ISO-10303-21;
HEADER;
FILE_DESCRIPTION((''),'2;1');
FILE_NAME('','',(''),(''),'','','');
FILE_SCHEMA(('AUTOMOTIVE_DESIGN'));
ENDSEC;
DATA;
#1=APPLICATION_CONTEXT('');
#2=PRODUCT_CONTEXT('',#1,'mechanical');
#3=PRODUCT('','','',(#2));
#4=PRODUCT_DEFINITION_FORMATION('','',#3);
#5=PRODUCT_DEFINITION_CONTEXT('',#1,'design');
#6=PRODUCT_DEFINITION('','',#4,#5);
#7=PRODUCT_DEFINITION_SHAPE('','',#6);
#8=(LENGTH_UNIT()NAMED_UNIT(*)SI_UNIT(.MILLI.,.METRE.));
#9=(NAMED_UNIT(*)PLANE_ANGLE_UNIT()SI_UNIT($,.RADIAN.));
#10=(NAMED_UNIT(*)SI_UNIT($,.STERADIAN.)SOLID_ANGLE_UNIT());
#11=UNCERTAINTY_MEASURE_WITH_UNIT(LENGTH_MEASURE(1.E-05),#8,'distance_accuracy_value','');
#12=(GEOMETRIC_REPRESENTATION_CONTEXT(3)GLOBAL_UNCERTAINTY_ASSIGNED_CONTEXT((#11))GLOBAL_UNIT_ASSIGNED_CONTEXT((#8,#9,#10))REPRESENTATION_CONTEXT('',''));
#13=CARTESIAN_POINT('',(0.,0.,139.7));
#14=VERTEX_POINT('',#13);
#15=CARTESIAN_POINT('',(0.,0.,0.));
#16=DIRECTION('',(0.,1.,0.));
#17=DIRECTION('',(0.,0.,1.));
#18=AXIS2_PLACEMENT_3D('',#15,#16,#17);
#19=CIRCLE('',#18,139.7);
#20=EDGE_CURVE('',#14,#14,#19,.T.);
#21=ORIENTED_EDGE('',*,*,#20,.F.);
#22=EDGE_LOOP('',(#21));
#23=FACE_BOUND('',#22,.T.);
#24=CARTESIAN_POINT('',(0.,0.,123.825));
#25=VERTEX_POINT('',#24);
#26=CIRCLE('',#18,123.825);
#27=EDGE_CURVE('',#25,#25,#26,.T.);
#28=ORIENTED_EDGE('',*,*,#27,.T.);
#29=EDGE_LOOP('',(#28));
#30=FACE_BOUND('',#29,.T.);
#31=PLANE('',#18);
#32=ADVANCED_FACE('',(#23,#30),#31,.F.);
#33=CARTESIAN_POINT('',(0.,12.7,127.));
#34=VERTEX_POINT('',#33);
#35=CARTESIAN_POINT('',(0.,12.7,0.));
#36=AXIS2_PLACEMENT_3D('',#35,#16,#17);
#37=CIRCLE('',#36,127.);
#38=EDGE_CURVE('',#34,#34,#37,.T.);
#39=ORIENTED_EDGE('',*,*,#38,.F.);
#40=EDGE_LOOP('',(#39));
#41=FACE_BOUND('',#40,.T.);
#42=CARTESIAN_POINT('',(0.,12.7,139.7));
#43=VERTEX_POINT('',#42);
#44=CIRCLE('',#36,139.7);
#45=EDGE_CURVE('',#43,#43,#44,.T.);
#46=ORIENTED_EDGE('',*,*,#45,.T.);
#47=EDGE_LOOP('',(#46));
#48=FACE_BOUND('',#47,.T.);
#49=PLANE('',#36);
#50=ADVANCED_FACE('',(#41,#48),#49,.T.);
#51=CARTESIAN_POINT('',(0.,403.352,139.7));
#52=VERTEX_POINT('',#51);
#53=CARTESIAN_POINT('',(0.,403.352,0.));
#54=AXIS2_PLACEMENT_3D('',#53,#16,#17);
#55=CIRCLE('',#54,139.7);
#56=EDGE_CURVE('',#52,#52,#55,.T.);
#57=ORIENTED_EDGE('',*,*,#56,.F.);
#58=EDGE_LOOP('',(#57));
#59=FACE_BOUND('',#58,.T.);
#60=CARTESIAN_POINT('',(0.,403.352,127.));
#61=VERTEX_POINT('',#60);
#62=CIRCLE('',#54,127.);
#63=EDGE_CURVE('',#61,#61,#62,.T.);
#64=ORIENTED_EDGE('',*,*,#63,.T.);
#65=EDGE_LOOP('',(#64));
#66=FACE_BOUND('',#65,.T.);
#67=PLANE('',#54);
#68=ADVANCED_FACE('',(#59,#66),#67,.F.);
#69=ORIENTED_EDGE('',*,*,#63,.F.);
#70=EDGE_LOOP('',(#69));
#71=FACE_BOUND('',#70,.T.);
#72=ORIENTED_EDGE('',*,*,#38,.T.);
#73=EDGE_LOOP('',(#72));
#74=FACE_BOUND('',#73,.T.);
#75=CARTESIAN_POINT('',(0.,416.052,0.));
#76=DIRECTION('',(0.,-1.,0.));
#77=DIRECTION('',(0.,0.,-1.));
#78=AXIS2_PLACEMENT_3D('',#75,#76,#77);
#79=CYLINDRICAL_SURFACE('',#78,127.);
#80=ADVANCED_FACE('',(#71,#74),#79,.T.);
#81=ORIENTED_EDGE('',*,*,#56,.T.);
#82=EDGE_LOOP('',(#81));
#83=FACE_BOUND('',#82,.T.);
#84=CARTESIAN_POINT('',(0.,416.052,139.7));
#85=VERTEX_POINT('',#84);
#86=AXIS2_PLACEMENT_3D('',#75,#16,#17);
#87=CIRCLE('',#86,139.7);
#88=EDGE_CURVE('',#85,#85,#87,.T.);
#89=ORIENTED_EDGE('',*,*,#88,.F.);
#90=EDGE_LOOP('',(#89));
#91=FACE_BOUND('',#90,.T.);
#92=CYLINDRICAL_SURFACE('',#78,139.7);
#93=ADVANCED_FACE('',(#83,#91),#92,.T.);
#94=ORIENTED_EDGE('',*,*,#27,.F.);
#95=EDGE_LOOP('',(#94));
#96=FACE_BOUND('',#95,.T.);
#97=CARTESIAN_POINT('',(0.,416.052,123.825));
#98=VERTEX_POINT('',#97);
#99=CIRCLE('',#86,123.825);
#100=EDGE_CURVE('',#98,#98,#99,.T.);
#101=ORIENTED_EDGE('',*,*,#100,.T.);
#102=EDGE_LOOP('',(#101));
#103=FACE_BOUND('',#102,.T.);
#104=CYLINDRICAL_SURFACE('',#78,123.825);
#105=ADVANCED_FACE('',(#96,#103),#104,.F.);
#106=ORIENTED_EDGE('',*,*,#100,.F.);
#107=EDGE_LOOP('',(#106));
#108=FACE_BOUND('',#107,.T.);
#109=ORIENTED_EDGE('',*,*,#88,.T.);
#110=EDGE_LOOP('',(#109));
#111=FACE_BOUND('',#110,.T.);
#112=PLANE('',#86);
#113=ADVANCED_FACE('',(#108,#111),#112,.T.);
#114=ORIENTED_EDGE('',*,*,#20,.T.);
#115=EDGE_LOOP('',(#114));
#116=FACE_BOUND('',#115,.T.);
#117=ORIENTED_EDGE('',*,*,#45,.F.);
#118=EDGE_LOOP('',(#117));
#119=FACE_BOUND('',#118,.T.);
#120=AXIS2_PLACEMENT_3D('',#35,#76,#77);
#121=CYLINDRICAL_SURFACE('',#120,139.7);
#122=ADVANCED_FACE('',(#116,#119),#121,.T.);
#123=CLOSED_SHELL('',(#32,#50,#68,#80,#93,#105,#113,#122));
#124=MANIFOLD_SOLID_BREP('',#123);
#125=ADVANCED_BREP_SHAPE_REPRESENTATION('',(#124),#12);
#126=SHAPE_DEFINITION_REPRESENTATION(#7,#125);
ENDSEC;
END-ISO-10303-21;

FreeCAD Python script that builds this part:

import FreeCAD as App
import Part
import Sketcher
Q = App.Units.Quantity

doc = App.newDocument("Part")
body = doc.addObject("PartDesign::Body", "Body")

sketch1 = doc.addObject("Sketcher::SketchObject", "Sketch")
body.addObject(sketch1)
sketch1.AttachmentSupport = (doc.XZ_Plane, [""])
sketch1.MapMode = "FlatFace"
sketch1.addGeometry(Part.Circle(App.Vector(0, 0, 0), App.Vector(0, 0, 1), 127), False)
sketch1.addGeometry(Part.Circle(App.Vector(0, 0, 0), App.Vector(0, 0, 1), 124), False)
sketch1.addConstraint(Sketcher.Constraint("Coincident", 0, 3, -1, 1))
sketch1.addConstraint(Sketcher.Constraint("Coincident", 1, 3, -1, 1))
sketch1.addConstraint(Sketcher.Constraint("Diameter", 0, Q("10 in")))
sketch1.addConstraint(Sketcher.Constraint("Diameter", 1, Q("9.75 in")))
pad1 = doc.addObject("PartDesign::Pad", "Pad")
body.addObject(pad1)
pad1.Profile = sketch1
pad1.Length = Q("16.38 in")
pad1.Reversed = True

sketch2 = doc.addObject("Sketcher::SketchObject", "Sketch001")
body.addObject(sketch2)
sketch2.AttachmentSupport = (doc.XZ_Plane, [""])
sketch2.MapMode = "FlatFace"
sketch2.addGeometry(Part.Circle(App.Vector(0, 0, 0), App.Vector(0, 0, 1), 140), False)
sketch2.addGeometry(Part.Circle(App.Vector(0, 0, 0), App.Vector(0, 0, 1), 127), False)
sketch2.addConstraint(Sketcher.Constraint("Coincident", 0, 3, -1, 1))
sketch2.addConstraint(Sketcher.Constraint("Coincident", 1, 3, -1, 1))
sketch2.addConstraint(Sketcher.Constraint("Diameter", 0, Q("11 in")))
sketch2.addConstraint(Sketcher.Constraint("Diameter", 1, Q("10 in")))
pad2 = doc.addObject("PartDesign::Pad", "Pad001")
body.addObject(pad2)
pad2.Profile = sketch2
pad2.Length = Q("0.5 in")
pad2.Reversed = True

sketch3 = doc.addObject("Sketcher::SketchObject", "Sketch002")
body.addObject(sketch3)
sketch3.AttachmentSupport = (doc.XZ_Plane, [""])
sketch3.MapMode = "FlatFace"
sketch3.AttachmentOffset = App.Placement(App.Vector(0, 0, -15.88 * 25.4), App.Rotation())
sketch3.addGeometry(Part.Circle(App.Vector(0, 0, 0), App.Vector(0, 0, 1), 140), False)
sketch3.addGeometry(Part.Circle(App.Vector(0, 0, 0), App.Vector(0, 0, 1), 127), False)
sketch3.addConstraint(Sketcher.Constraint("Coincident", 0, 3, -1, 1))
sketch3.addConstraint(Sketcher.Constraint("Coincident", 1, 3, -1, 1))
sketch3.addConstraint(Sketcher.Constraint("Diameter", 0, Q("11 in")))
sketch3.addConstraint(Sketcher.Constraint("Diameter", 1, Q("10 in")))
pad3 = doc.addObject("PartDesign::Pad", "Pad002")
body.addObject(pad3)
pad3.Profile = sketch3
pad3.Length = Q("0.5 in")
pad3.Reversed = True

doc.recompute()
